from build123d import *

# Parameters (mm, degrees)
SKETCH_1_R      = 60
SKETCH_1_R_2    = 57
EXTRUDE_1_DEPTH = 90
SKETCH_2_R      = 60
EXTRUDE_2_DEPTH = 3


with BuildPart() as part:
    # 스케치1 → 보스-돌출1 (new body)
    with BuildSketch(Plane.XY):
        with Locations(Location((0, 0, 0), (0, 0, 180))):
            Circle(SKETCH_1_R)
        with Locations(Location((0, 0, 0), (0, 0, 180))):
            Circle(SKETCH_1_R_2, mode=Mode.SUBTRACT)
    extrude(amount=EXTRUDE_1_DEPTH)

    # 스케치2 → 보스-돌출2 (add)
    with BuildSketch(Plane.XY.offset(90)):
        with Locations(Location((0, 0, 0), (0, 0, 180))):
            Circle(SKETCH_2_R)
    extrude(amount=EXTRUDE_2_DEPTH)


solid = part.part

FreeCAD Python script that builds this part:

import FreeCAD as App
import Part
import Sketcher

doc = App.newDocument("Part")
body = doc.addObject("PartDesign::Body", "Body")

# Sketch on XY plane
sketch1 = doc.addObject("Sketcher::SketchObject", "Sketch")
body.addObject(sketch1)
sketch1.AttachmentSupport = (doc.XY_Plane, [""])
sketch1.MapMode = "FlatFace"
sketch1.addGeometry(Part.Circle(App.Vector(0, 0, 0), App.Vector(0, 0, 1), 60), False)
sketch1.addGeometry(Part.Circle(App.Vector(0, 0, 0), App.Vector(0, 0, 1), 57), False)
sketch1.addConstraint(Sketcher.Constraint("Coincident", 0, 3, -1, 1))
sketch1.addConstraint(Sketcher.Constraint("Coincident", 1, 3, -1, 1))
sketch1.addConstraint(Sketcher.Constraint("Diameter", 0, 120.0))
sketch1.addConstraint(Sketcher.Constraint("Diameter", 1, 114.0))
pad1 = doc.addObject("PartDesign::Pad", "Pad")
body.addObject(pad1)
pad1.Profile = sketch1
pad1.Length = 90

# Sketch on XY plane
sketch2 = doc.addObject("Sketcher::SketchObject", "Sketch001")
body.addObject(sketch2)
sketch2.AttachmentSupport = (doc.XY_Plane, [""])
sketch2.MapMode = "FlatFace"
sketch2.AttachmentOffset = App.Placement(App.Vector(0, 0, 90), App.Rotation())
sketch2.addGeometry(Part.Circle(App.Vector(0, 0, 0), App.Vector(0, 0, 1), 60), False)
sketch2.addConstraint(Sketcher.Constraint("Coincident", 0, 3, -1, 1))
sketch2.addConstraint(Sketcher.Constraint("Diameter", 0, 120.0))
pad2 = doc.addObject("PartDesign::Pad", "Pad001")
body.addObject(pad2)
pad2.Profile = sketch2
pad2.Length = 3

doc.recompute()
